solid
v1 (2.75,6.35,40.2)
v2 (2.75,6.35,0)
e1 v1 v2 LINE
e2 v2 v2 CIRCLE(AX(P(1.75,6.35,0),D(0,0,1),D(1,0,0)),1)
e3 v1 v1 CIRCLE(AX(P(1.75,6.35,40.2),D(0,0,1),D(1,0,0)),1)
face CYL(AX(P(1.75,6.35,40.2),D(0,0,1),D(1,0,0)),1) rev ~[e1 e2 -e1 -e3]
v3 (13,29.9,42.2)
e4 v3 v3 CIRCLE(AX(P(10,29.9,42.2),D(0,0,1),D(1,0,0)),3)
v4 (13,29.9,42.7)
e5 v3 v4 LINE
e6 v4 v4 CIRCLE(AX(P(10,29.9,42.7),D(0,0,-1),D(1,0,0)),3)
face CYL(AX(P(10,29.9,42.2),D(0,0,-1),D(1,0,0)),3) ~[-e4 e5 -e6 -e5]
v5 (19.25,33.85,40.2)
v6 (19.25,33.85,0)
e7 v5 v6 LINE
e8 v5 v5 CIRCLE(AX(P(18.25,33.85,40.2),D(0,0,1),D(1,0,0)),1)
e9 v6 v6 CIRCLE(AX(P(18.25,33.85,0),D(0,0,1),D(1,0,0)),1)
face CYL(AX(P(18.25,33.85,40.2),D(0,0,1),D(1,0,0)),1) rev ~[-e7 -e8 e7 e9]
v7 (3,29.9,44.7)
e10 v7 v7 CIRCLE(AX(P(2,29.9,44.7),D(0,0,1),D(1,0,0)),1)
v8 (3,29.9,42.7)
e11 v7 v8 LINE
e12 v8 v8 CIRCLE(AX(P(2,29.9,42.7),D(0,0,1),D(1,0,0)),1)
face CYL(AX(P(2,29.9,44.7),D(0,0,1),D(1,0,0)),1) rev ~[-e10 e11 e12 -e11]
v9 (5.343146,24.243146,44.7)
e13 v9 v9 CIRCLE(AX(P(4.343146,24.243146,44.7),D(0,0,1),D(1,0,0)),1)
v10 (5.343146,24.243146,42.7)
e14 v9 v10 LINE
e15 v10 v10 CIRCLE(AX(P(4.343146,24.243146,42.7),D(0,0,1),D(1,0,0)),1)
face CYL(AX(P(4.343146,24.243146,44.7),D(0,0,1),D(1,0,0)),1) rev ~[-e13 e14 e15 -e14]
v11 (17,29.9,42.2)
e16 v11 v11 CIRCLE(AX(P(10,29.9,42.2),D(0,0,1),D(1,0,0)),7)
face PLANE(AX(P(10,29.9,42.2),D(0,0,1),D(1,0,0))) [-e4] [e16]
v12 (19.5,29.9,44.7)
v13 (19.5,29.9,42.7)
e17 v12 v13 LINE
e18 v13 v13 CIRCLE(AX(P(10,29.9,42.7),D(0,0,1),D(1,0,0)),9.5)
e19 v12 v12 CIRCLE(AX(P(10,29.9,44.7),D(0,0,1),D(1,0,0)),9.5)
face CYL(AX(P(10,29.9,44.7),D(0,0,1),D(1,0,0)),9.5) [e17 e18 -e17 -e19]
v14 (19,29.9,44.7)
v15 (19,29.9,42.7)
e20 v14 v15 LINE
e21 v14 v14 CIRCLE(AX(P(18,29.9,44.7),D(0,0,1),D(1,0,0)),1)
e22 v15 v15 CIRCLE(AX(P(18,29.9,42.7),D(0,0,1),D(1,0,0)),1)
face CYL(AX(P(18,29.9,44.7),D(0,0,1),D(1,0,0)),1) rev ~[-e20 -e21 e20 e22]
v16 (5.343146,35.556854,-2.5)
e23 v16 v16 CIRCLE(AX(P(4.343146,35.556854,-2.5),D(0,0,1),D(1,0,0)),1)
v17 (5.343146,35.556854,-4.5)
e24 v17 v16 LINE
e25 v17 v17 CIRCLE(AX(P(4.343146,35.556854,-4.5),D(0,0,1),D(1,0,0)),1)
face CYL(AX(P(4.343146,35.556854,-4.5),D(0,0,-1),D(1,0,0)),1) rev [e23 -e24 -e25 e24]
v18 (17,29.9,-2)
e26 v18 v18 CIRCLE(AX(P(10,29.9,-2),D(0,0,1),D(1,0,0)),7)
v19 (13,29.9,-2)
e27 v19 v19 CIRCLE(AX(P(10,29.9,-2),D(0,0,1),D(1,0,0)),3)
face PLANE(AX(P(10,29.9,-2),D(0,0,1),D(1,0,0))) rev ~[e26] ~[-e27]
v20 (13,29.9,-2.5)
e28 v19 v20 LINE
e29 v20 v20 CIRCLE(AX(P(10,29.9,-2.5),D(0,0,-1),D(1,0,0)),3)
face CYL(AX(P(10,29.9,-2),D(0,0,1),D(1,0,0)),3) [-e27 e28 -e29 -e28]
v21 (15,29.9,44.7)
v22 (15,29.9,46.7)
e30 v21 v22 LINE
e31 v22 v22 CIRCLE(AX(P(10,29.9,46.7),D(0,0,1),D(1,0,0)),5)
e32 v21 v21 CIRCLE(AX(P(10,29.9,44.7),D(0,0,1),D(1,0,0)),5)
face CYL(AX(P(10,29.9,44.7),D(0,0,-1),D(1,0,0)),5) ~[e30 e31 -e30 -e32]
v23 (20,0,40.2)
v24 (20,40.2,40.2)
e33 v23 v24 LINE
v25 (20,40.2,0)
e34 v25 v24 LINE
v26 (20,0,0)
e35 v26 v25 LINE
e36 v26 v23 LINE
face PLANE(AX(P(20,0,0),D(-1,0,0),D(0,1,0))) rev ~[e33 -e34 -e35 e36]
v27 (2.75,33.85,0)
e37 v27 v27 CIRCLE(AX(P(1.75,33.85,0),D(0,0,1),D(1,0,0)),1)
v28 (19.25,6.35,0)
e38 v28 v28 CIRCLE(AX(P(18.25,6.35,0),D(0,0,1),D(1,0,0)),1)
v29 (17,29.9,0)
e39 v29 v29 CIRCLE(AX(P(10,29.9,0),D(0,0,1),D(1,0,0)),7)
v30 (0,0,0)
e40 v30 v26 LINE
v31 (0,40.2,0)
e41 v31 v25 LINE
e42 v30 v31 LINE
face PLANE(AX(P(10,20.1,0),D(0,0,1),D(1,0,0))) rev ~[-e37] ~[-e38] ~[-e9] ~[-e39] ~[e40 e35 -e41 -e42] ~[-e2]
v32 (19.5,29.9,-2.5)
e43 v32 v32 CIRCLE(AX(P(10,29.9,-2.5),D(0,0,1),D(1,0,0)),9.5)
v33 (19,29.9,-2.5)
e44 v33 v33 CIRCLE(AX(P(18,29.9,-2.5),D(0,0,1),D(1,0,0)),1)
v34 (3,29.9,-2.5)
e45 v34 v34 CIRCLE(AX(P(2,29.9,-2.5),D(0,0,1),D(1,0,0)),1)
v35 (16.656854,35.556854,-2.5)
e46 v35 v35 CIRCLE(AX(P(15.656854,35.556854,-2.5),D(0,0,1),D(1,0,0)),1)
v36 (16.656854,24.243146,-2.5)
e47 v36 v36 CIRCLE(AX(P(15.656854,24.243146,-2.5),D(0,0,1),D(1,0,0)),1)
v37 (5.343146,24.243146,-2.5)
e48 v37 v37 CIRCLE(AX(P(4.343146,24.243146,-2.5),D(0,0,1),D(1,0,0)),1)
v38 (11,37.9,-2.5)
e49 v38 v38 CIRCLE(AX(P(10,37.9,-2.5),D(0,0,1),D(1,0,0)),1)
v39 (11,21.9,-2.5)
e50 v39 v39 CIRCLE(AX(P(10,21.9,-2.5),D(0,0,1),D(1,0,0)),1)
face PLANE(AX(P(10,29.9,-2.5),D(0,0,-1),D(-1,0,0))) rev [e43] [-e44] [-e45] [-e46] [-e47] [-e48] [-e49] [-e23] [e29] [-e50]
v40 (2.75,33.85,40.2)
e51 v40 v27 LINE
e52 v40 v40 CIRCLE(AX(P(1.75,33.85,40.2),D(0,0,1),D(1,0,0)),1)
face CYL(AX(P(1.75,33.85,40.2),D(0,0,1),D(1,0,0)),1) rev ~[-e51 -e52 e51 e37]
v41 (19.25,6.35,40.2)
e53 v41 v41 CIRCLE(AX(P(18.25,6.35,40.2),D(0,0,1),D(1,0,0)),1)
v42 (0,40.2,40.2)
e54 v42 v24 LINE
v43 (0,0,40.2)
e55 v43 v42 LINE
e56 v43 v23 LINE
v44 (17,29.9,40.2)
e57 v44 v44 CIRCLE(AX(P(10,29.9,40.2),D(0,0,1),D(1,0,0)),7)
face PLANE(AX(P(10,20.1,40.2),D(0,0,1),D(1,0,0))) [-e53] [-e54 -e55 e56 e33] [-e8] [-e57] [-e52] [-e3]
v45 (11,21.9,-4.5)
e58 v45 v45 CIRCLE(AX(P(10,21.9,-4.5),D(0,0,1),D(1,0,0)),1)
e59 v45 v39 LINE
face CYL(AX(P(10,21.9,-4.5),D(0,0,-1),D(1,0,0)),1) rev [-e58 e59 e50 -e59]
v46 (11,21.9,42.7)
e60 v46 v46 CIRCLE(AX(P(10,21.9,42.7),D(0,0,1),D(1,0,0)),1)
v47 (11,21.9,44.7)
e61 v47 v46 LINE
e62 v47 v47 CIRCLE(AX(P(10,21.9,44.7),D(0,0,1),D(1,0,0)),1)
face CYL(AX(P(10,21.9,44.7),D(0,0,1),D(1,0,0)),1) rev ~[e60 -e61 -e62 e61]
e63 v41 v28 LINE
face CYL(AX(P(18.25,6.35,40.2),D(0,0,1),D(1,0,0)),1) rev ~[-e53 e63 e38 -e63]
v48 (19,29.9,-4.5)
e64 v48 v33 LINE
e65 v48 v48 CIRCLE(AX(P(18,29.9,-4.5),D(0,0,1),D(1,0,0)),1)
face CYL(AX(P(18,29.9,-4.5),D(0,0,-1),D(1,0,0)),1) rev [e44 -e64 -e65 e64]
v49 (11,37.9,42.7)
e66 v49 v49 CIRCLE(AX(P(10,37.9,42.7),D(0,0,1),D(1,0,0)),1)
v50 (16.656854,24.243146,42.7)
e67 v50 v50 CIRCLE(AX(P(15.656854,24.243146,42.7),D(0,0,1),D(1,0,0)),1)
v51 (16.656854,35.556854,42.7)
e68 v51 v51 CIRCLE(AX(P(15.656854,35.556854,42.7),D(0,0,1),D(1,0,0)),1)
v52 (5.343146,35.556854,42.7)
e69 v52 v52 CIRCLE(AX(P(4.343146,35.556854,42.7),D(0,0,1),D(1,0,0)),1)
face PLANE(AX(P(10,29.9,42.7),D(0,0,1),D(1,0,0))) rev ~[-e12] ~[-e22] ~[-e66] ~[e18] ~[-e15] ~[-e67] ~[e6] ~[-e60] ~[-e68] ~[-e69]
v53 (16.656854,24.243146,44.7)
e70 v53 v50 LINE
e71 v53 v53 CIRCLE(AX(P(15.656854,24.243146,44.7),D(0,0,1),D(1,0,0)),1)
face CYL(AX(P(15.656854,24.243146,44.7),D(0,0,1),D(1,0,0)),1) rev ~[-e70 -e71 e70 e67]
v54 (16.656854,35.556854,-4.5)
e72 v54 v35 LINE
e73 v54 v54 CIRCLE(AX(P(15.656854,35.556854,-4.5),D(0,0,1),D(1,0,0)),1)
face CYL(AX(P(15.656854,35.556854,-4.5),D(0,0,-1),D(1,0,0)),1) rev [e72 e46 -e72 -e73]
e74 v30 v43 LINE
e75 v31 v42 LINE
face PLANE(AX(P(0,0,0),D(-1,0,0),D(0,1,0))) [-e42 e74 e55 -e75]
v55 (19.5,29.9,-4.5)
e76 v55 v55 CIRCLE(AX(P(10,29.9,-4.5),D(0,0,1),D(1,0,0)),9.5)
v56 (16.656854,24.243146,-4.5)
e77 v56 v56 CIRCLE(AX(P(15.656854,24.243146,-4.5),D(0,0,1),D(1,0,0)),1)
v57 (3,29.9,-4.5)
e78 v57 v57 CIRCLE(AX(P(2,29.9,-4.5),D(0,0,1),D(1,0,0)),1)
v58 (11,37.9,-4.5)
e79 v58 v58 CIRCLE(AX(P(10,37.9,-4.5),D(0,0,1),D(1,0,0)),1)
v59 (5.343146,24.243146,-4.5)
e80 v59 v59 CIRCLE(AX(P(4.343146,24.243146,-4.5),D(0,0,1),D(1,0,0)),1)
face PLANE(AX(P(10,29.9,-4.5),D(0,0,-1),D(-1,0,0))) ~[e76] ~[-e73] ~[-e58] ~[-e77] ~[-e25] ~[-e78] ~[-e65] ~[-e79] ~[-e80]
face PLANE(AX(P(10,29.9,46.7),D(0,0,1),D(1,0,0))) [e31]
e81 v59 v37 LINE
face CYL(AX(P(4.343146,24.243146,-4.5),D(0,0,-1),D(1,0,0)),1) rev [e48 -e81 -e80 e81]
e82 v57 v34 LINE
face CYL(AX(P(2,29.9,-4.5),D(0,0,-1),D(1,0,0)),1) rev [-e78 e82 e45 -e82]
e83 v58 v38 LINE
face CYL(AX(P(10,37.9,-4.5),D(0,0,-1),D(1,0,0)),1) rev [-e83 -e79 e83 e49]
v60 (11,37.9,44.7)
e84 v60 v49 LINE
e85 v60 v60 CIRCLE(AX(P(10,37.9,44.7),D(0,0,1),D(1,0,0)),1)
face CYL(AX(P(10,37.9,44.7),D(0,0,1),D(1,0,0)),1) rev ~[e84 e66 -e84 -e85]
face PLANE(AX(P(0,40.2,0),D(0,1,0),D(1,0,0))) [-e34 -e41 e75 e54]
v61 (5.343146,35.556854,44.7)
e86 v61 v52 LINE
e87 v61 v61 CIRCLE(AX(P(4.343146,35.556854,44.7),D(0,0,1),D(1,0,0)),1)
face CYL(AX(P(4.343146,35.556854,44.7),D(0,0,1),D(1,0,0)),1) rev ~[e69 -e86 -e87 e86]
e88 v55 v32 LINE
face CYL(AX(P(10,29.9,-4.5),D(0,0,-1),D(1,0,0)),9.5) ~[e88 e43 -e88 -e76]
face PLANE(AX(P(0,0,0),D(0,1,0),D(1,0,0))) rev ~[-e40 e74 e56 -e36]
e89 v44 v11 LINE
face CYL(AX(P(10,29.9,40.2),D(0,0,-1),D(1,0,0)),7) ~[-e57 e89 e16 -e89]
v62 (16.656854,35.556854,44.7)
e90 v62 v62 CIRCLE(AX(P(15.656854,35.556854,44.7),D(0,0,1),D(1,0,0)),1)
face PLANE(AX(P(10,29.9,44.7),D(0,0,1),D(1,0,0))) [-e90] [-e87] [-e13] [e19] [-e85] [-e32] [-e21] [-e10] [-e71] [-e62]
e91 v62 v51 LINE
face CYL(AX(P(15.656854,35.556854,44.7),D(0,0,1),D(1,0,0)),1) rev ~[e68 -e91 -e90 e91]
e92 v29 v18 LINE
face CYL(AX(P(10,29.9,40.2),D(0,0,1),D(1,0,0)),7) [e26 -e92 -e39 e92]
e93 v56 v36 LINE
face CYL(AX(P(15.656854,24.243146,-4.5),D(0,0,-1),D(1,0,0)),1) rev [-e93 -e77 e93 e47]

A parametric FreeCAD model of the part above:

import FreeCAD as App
import Part
import Sketcher

V = App.Vector

doc = App.newDocument("Part")
body = doc.addObject("PartDesign::Body", "Body")

# Sketch on XY plane
sketch1 = body.newObject("Sketcher::SketchObject", "Sketch")
sketch1.AttachmentSupport = (doc.getObject("XY_Plane"), [""])
sketch1.MapMode = "FlatFace"
sketch1.addGeometry(Part.LineSegment(V(0, 40, 0), V(0, 0, 0)), False)
sketch1.addGeometry(Part.LineSegment(V(0, 0, 0), V(20, 0, 0)), False)
sketch1.addGeometry(Part.LineSegment(V(20, 0, 0), V(20, 40, 0)), False)
sketch1.addGeometry(Part.LineSegment(V(20, 40, 0), V(0, 40, 0)), False)
sketch1.addConstraint(Sketcher.Constraint("Coincident", 0, 2, 1, 1))
sketch1.addConstraint(Sketcher.Constraint("Coincident", 1, 2, 2, 1))
sketch1.addConstraint(Sketcher.Constraint("Coincident", 2, 2, 3, 1))
sketch1.addConstraint(Sketcher.Constraint("Coincident", 3, 2, 0, 1))
sketch1.addConstraint(Sketcher.Constraint("Vertical", 0))
sketch1.addConstraint(Sketcher.Constraint("Horizontal", 1))
sketch1.addConstraint(Sketcher.Constraint("Vertical", 2))
sketch1.addConstraint(Sketcher.Constraint("Horizontal", 3))
sketch1.addConstraint(Sketcher.Constraint("Coincident", 0, 2, -1, 1))
sketch1.addConstraint(Sketcher.Constraint("DistanceX", 1, 1, 1, 2, 20.0))
sketch1.addConstraint(Sketcher.Constraint("DistanceY", 0, 2, 0, 1, 40.2))
pad1 = body.newObject("PartDesign::Pad", "Pad")
pad1.Profile = sketch1
pad1.Length = 40.2

# Sketch on XY plane
sketch2 = body.newObject("Sketcher::SketchObject", "Sketch001")
sketch2.AttachmentSupport = (doc.getObject("XY_Plane"), [""])
sketch2.MapMode = "FlatFace"
sketch2.AttachmentOffset = App.Placement(V(0, 0, 40.2), App.Rotation())
sketch2.addGeometry(Part.Circle(V(1.8, 33.9, 0), V(0, 0, 1), 1), False)
sketch2.addGeometry(Part.Circle(V(18.2, 33.9, 0), V(0, 0, 1), 1), False)
sketch2.addGeometry(Part.Circle(V(1.8, 6.3, 0), V(0, 0, 1), 1), False)
sketch2.addGeometry(Part.Circle(V(18.2, 6.3, 0), V(0, 0, 1), 1), False)
sketch2.addConstraint(Sketcher.Constraint("Equal", 0, 1))
sketch2.addConstraint(Sketcher.Constraint("Equal", 1, 2))
sketch2.addConstraint(Sketcher.Constraint("Equal", 2, 3))
sketch2.addConstraint(Sketcher.Constraint("Horizontal", 0, 3, 1, 3))
sketch2.addConstraint(Sketcher.Constraint("Horizontal", 2, 3, 3, 3))
sketch2.addConstraint(Sketcher.Constraint("Vertical", 0, 3, 2, 3))
sketch2.addConstraint(Sketcher.Constraint("Vertical", 1, 3, 3, 3))
sketch2.addConstraint(Sketcher.Constraint("Diameter", 0, 2.0))
sketch2.addConstraint(Sketcher.Constraint("DistanceX", 0, 3, 1, 3, 16.5))
sketch2.addConstraint(Sketcher.Constraint("DistanceY", 2, 3, 0, 3, 27.5))
sketch2.addConstraint(Sketcher.Constraint("DistanceX", -1, 1, 0, 3, 1.75))
sketch2.addConstraint(Sketcher.Constraint("DistanceY", -1, 1, 0, 3, 33.85))
pocket1 = body.newObject("PartDesign::Pocket", "Pocket")
pocket1.Profile = sketch2
pocket1.Type = "ThroughAll"

# Sketch on XY plane
sketch3 = body.newObject("Sketcher::SketchObject", "Sketch002")
sketch3.AttachmentSupport = (doc.getObject("XY_Plane"), [""])
sketch3.MapMode = "FlatFace"
sketch3.AttachmentOffset = App.Placement(V(0, 0, 40.2), App.Rotation())
sketch3.addGeometry(Part.Circle(V(10, 30, 0), V(0, 0, 1), 7), False)
sketch3.addConstraint(Sketcher.Constraint("Diameter", 0, 14.0))
sketch3.addConstraint(Sketcher.Constraint("DistanceX", -1, 1, 0, 3, 10.0))
sketch3.addConstraint(Sketcher.Constraint("DistanceY", -1, 1, 0, 3, 29.9))
pad2 = body.newObject("PartDesign::Pad", "Pad001")
pad2.Profile = sketch3
pad2.Type = "TwoLengths"
pad2.Length = 2
pad2.Length2 = 42.2

# Sketch on XY plane
sketch4 = body.newObject("Sketcher::SketchObject", "Sketch003")
sketch4.AttachmentSupport = (doc.getObject("XY_Plane"), [""])
sketch4.MapMode = "FlatFace"
sketch4.AttachmentOffset = App.Placement(V(0, 0, 42.2), App.Rotation())
sketch4.addGeometry(Part.Circle(V(10, 29.9, 0), V(0, 0, 1), 3), False)
sketch4.addConstraint(Sketcher.Constraint("Diameter", 0, 6.0))
sketch4.addConstraint(Sketcher.Constraint("DistanceX", -1, 1, 0, 3, 10.0))
sketch4.addConstraint(Sketcher.Constraint("DistanceY", -1, 1, 0, 3, 29.9))
pad3 = body.newObject("PartDesign::Pad", "Pad002")
pad3.Profile = sketch4
pad3.Length = 2.5

# Sketch on XY plane
sketch5 = body.newObject("Sketcher::SketchObject", "Sketch004")
sketch5.AttachmentSupport = (doc.getObject("XY_Plane"), [""])
sketch5.MapMode = "FlatFace"
sketch5.AttachmentOffset = App.Placement(V(0, 0, 44.7), App.Rotation())
sketch5.addGeometry(Part.Circle(V(10, 29.9, 0), V(0, 0, 1), 9.5), False)
sketch5.addGeometry(Part.Circle(V(4.3, 24.2, 0), V(0, 0, 1), 1), False)
sketch5.addGeometry(Part.Circle(V(10, 21.9, 0), V(0, 0, 1), 1), False)
sketch5.addGeometry(Part.Circle(V(15.7, 24.2, 0), V(0, 0, 1), 1), False)
sketch5.addGeometry(Part.Circle(V(2, 29.9, 0), V(0, 0, 1), 1), False)
sketch5.addGeometry(Part.Circle(V(4.3, 35.6, 0), V(0, 0, 1), 1), False)
sketch5.addGeometry(Part.Circle(V(18, 29.9, 0), V(0, 0, 1), 1), False)
sketch5.addGeometry(Part.Circle(V(10, 37.9, 0), V(0, 0, 1), 1), False)
sketch5.addGeometry(Part.Circle(V(15.7, 35.6, 0), V(0, 0, 1), 1), False)
sketch5.addConstraint(Sketcher.Constraint("Equal", 1, 2))
sketch5.addConstraint(Sketcher.Constraint("Equal", 2, 3))
sketch5.addConstraint(Sketcher.Constraint("Equal", 3, 4))
sketch5.addConstraint(Sketcher.Constraint("Equal", 4, 5))
sketch5.addConstraint(Sketcher.Constraint("Equal", 5, 6))
sketch5.addConstraint(Sketcher.Constraint("Equal", 6, 7))
sketch5.addConstraint(Sketcher.Constraint("Equal", 7, 8))
sketch5.addConstraint(Sketcher.Constraint("Horizontal", 1, 3, 3, 3))
sketch5.addConstraint(Sketcher.Constraint("Horizontal", 0, 3, 4, 3))
sketch5.addConstraint(Sketcher.Constraint("Horizontal", 4, 3, 6, 3))
sketch5.addConstraint(Sketcher.Constraint("Horizontal", 5, 3, 8, 3))
sketch5.addConstraint(Sketcher.Constraint("Vertical", 0, 3, 2, 3))
sketch5.addConstraint(Sketcher.Constraint("Vertical", 1, 3, 5, 3))
sketch5.addConstraint(Sketcher.Constraint("Vertical", 2, 3, 7, 3))
sketch5.addConstraint(Sketcher.Constraint("Vertical", 3, 3, 8, 3))
sketch5.addConstraint(Sketcher.Constraint("Diameter", 0, 19.0))
sketch5.addConstraint(Sketcher.Constraint("Diameter", 1, 2.0))
sketch5.addConstraint(Sketcher.Constraint("DistanceX", -1, 1, 0, 3, 10.0))
sketch5.addConstraint(Sketcher.Constraint("DistanceX", -1, 1, 4, 3, 2.0))
sketch5.addConstraint(Sketcher.Constraint("DistanceX", -1, 1, 6, 3, 18.0))
sketch5.addConstraint(Sketcher.Constraint("DistanceY", 2, 3, 0, 3, 8.0))
sketch5.addConstraint(Sketcher.Constraint("DistanceY", 0, 3, 7, 3, 8.0))
sketch5.addConstraint(Sketcher.Constraint("DistanceY", -1, 1, 0, 3, 29.9))
sketch5.addConstraint(Sketcher.Constraint("DistanceY", 1, 3, 5, 3, 11.313708))
sketch5.addConstraint(Sketcher.Constraint("DistanceX", -1, 1, 1, 3, 4.343146))
sketch5.addConstraint(Sketcher.Constraint("DistanceY", -1, 1, 1, 3, 24.243146))
sketch5.addConstraint(Sketcher.Constraint("DistanceX", -1, 1, 3, 3, 15.656854))
pad4 = body.newObject("PartDesign::Pad", "Pad003")
pad4.Profile = sketch5
pad4.Length = 2
pad4.Reversed = True
body2 = doc.addObject("PartDesign::Body", "Body001")
doc.recompute()

body2.BaseFeature = body
doc.recompute()

mirroring = doc.addObject("Part::Mirroring", "Mirroring")
mirroring.Source = body
mirroring.Base = V(0, 0, 20.1)
mirroring.Normal = V(0, 0, 1)
body3 = doc.addObject("PartDesign::Body", "Body002")
body3.BaseFeature = mirroring
boolean = body2.newObject("PartDesign::Boolean", "Boolean")
boolean.Type = "Fuse"
boolean.addObjects([body3])
doc.recompute()

# Sketch on XY plane
sketch6 = body2.newObject("Sketcher::SketchObject", "Sketch005")
sketch6.AttachmentSupport = (doc.getObject("XY_Plane001"), [""])
sketch6.MapMode = "FlatFace"
sketch6.AttachmentOffset = App.Placement(V(0, 0, 44.7), App.Rotation())
sketch6.addGeometry(Part.Circle(V(10, 30, 0), V(0, 0, 1), 5), False)
sketch6.addConstraint(Sketcher.Constraint("Diameter", 0, 10.0))
sketch6.addConstraint(Sketcher.Constraint("DistanceX", -1, 1, 0, 3, 10.0))
sketch6.addConstraint(Sketcher.Constraint("DistanceY", -1, 1, 0, 3, 29.9))
pad5 = body2.newObject("PartDesign::Pad", "Pad004")
pad5.Profile = sketch6
pad5.Length = 2
mirroring.Visibility = False

doc.recompute()
